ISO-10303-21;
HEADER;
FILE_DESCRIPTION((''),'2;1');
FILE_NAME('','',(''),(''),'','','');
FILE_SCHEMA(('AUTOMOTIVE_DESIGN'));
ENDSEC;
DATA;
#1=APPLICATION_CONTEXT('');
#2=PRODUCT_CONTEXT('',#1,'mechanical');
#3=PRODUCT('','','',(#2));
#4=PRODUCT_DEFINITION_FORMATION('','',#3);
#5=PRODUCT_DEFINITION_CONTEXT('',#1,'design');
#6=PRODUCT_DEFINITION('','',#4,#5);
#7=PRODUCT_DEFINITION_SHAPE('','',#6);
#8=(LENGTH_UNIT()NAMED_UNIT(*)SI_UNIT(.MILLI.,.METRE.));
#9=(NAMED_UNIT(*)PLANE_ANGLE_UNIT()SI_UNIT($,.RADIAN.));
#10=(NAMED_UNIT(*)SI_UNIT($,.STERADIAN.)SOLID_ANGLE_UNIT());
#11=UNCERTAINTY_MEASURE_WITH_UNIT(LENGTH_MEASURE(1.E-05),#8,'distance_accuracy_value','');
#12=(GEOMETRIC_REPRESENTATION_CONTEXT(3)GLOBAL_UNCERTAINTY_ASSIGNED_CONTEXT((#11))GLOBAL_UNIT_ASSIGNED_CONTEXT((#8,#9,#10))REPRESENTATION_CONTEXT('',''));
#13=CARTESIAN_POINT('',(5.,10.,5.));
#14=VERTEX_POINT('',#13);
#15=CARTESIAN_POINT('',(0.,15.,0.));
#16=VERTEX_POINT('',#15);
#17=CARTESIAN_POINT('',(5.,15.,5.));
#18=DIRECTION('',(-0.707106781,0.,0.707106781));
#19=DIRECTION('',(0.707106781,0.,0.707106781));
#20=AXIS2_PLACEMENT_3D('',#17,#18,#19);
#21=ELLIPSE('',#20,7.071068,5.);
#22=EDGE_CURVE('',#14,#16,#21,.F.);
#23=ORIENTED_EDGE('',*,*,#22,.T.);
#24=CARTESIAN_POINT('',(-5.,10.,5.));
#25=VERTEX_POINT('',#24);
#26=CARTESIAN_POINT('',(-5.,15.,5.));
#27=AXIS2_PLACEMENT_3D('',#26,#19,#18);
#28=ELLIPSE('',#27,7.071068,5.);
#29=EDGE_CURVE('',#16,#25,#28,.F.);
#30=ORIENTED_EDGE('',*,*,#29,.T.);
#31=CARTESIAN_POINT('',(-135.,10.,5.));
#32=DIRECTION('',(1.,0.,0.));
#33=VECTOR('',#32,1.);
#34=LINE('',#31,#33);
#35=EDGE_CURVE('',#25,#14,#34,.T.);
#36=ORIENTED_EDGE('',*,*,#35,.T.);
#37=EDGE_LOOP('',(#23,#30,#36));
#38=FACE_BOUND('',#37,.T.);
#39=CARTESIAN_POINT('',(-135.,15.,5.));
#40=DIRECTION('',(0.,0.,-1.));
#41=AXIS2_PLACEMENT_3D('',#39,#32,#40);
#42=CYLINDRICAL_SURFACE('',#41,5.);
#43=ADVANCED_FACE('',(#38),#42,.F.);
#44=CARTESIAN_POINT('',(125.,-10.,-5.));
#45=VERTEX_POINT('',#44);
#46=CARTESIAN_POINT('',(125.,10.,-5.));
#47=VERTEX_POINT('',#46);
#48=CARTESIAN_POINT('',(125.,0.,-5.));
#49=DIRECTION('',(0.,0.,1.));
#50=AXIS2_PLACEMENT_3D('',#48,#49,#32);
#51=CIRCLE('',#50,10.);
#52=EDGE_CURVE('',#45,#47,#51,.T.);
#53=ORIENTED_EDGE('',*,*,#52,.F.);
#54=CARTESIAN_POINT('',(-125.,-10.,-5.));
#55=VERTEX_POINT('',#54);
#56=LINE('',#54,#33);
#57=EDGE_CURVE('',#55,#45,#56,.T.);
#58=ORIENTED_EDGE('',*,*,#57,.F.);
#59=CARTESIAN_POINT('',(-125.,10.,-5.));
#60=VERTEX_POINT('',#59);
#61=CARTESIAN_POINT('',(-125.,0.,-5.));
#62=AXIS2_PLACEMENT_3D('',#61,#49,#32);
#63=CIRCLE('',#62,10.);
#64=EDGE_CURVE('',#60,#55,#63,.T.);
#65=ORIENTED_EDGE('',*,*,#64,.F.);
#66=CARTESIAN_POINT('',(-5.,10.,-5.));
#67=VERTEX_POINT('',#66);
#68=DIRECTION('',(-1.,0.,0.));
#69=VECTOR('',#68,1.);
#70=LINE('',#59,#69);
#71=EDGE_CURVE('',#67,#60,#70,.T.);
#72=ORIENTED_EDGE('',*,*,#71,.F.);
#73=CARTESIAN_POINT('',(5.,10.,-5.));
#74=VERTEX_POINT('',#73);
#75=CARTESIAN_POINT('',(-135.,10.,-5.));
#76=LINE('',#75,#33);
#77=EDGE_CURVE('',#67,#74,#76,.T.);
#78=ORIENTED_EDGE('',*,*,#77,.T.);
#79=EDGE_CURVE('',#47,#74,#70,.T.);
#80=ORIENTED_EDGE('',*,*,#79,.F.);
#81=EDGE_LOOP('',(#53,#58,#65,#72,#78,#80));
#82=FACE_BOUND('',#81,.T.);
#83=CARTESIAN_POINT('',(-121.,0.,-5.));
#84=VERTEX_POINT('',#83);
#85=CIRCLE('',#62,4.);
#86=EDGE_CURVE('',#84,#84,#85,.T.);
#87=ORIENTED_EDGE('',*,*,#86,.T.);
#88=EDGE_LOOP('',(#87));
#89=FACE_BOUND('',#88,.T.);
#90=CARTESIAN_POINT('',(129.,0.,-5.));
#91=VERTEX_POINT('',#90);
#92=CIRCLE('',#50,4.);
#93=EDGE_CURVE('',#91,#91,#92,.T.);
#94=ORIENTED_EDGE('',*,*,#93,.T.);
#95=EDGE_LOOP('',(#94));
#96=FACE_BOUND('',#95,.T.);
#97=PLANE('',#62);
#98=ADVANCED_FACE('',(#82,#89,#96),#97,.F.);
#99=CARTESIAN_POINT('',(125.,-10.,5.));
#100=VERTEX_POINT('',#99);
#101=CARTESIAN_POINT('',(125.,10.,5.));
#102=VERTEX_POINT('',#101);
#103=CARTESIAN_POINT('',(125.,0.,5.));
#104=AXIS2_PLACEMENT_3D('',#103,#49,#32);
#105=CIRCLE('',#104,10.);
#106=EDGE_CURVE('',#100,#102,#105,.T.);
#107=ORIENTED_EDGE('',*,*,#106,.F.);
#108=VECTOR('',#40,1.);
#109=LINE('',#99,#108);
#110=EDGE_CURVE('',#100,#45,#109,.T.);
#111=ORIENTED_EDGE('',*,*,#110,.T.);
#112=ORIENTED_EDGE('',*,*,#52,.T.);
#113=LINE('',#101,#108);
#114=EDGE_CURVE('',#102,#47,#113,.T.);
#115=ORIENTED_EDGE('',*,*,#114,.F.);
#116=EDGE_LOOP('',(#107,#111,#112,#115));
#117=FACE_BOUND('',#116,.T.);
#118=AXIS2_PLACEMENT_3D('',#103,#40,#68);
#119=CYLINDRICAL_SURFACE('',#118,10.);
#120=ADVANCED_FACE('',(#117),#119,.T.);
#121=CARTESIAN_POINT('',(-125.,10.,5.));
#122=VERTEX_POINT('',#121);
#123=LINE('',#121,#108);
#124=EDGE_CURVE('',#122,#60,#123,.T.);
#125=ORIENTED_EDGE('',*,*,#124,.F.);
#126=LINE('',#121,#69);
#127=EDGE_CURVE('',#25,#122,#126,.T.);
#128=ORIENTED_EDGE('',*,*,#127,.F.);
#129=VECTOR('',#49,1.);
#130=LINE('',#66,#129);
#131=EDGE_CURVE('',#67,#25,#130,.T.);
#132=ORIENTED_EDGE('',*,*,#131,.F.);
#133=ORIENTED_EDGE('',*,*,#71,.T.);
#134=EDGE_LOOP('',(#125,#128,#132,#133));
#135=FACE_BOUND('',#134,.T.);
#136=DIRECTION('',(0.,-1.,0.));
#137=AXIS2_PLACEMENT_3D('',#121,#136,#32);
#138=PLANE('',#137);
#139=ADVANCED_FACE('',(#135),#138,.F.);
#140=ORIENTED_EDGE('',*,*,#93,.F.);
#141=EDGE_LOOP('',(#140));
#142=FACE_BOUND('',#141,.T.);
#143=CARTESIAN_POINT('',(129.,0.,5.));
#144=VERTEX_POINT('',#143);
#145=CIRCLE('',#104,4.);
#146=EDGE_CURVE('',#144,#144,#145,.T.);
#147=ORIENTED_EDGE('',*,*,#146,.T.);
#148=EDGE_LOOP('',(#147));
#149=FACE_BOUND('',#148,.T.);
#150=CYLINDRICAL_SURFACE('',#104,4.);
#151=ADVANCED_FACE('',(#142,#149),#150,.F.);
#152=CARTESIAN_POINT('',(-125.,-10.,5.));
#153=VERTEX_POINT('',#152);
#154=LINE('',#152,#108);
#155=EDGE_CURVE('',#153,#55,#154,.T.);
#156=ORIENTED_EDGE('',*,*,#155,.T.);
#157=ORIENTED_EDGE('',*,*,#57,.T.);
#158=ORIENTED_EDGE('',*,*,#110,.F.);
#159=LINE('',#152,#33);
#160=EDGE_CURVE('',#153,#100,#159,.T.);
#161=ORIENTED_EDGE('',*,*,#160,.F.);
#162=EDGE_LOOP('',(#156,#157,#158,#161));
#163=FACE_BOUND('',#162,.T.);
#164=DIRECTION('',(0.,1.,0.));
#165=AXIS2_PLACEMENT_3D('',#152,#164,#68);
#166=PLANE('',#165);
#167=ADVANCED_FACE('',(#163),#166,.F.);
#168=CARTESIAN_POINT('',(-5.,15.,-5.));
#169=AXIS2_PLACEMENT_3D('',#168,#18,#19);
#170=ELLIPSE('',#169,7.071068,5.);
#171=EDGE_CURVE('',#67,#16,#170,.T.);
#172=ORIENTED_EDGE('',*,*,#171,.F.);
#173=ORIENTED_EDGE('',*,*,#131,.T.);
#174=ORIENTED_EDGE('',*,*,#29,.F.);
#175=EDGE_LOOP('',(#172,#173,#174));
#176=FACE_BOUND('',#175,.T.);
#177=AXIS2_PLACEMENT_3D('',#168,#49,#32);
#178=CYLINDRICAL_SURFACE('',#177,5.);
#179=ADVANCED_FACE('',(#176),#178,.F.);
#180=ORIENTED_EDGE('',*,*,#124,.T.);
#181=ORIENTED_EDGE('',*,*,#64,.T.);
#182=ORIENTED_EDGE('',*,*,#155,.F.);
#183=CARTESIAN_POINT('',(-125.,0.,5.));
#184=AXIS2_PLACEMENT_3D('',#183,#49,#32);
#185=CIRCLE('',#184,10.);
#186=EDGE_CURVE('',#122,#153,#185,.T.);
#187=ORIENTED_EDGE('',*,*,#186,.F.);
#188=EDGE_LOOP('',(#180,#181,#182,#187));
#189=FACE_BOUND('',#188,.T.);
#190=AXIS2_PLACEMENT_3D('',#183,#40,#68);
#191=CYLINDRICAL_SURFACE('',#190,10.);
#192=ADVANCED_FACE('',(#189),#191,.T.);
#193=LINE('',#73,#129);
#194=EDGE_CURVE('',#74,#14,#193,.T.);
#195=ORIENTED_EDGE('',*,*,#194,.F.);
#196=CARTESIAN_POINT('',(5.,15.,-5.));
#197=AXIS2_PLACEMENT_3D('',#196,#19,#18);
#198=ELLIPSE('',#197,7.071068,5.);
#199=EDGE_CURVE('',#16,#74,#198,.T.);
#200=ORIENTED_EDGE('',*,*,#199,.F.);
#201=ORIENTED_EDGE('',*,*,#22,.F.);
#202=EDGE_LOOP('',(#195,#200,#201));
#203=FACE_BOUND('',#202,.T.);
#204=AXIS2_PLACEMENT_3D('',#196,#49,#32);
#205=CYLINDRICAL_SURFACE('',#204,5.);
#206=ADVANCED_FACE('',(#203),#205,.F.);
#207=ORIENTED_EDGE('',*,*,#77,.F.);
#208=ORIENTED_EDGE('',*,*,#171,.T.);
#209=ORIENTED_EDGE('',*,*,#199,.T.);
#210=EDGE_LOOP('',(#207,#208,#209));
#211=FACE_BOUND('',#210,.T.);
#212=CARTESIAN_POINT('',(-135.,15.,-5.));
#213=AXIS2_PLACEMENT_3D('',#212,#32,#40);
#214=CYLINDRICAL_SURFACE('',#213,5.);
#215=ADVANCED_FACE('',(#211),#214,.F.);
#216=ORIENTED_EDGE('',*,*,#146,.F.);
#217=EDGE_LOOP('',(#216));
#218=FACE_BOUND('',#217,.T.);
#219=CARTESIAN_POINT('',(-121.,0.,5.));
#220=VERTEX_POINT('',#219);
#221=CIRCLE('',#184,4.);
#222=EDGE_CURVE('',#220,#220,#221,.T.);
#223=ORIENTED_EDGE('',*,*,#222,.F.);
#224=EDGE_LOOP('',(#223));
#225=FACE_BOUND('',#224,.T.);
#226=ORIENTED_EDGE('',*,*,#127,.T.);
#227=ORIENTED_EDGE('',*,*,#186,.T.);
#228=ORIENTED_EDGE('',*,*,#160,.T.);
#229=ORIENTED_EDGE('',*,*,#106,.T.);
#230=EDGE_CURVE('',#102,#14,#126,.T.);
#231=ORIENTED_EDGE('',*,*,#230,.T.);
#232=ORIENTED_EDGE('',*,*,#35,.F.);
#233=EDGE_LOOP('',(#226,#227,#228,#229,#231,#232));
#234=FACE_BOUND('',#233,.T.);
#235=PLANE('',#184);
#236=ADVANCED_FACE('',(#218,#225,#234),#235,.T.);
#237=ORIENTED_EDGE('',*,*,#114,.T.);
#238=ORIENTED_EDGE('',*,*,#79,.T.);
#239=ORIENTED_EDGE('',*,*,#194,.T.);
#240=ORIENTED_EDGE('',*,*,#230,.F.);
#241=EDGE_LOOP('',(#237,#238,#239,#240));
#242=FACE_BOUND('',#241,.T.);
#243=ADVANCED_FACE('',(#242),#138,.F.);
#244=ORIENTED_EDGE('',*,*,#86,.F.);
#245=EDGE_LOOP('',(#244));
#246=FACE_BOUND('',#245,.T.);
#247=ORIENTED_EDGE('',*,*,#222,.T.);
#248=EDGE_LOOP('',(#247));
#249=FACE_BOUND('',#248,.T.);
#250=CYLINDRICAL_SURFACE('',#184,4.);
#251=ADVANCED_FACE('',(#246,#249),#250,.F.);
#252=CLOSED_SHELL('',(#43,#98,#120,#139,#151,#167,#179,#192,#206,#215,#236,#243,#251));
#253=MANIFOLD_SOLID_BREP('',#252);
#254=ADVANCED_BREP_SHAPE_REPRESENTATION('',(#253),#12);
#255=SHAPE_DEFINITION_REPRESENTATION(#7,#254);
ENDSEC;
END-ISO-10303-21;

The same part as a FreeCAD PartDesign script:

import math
import FreeCAD as App
import Part
import Sketcher

V = App.Vector

doc = App.newDocument("Part")
body = doc.addObject("PartDesign::Body", "Body")

sketch1 = body.newObject("Sketcher::SketchObject", "Sketch")
sketch1.AttachmentSupport = (doc.getObject("XY_Plane"), [""])
sketch1.MapMode = "FlatFace"
sketch1.addGeometry(Part.LineSegment(V(125, 10, 0), V(-125, 10, 0)), False)
sketch1.addGeometry(Part.ArcOfCircle(Part.Circle(V(-125, 0, 0), V(0, 0, 1), 10), math.radians(90), math.radians(270)), False)
sketch1.addGeometry(Part.LineSegment(V(-125, -10, 0), V(125, -10, 0)), False)
sketch1.addGeometry(Part.ArcOfCircle(Part.Circle(V(125, 0, 0), V(0, 0, 1), 10), math.radians(-90), math.radians(90)), False)
sketch1.addConstraint(Sketcher.Constraint("Tangent", 0, 2, 1, 1))
sketch1.addConstraint(Sketcher.Constraint("Tangent", 1, 2, 2, 1))
sketch1.addConstraint(Sketcher.Constraint("Tangent", 2, 2, 3, 1))
sketch1.addConstraint(Sketcher.Constraint("Tangent", 3, 2, 0, 1))
sketch1.addConstraint(Sketcher.Constraint("Horizontal", 0))
sketch1.addConstraint(Sketcher.Constraint("Horizontal", 2))
sketch1.addConstraint(Sketcher.Constraint("Symmetric", 1, 3, 3, 3, -1, 1))
sketch1.addConstraint(Sketcher.Constraint("Radius", 1, 10.0))
sketch1.addConstraint(Sketcher.Constraint("DistanceX", 0, 2, 0, 1, 250.0))
pad1 = body.newObject("PartDesign::Pad", "Pad")
pad1.Profile = sketch1
pad1.Length = 10
pad1.Midplane = True

sketch2 = body.newObject("Sketcher::SketchObject", "Sketch001")
sketch2.AttachmentSupport = (doc.getObject("XY_Plane"), [""])
sketch2.MapMode = "FlatFace"
sketch2.AttachmentOffset = App.Placement(V(0, 0, 5), App.Rotation())
sketch2.addGeometry(Part.Circle(V(-125, 0, 0), V(0, 0, 1), 4), False)
sketch2.addGeometry(Part.Circle(V(125, 0, 0), V(0, 0, 1), 4), False)
sketch2.addConstraint(Sketcher.Constraint("Equal", 0, 1))
sketch2.addConstraint(Sketcher.Constraint("Symmetric", 0, 3, 1, 3, -1, 1))
sketch2.addConstraint(Sketcher.Constraint("PointOnObject", 0, 3, -1))
sketch2.addConstraint(Sketcher.Constraint("Diameter", 0, 8.0))
sketch2.addConstraint(Sketcher.Constraint("DistanceX", 0, 3, -1, 1, 125.0))
doc.recompute()
hole = body.newObject("PartDesign::Hole", "Hole")
hole.Profile = sketch2
hole.ThreadType = "None"
hole.Diameter = 8
hole.DepthType = "ThroughAll"

sketch3 = body.newObject("Sketcher::SketchObject", "Sketch002")
sketch3.AttachmentSupport = (doc.getObject("XY_Plane"), [""])
sketch3.MapMode = "FlatFace"
sketch3.AttachmentOffset = App.Placement(V(0, 0, 5), App.Rotation())
sketch3.addGeometry(Part.LineSegment(V(-5, 10, 0), V(5, 10, 0)), False)
sketch3.addGeometry(Part.ArcOfCircle(Part.Circle(V(5, 15, 0), V(0, 0, 1), 5), math.radians(180), math.radians(270)), False)
sketch3.addGeometry(Part.ArcOfCircle(Part.Circle(V(-5, 15, 0), V(0, 0, 1), 5), math.radians(-90), math.radians(0)), False)
sketch3.addConstraint(Sketcher.Constraint("Tangent", 0, 2, 1, 2))
sketch3.addConstraint(Sketcher.Constraint("Tangent", 1, 1, 2, 2))
sketch3.addConstraint(Sketcher.Constraint("Tangent", 2, 1, 0, 1))
sketch3.addConstraint(Sketcher.Constraint("Horizontal", 0))
sketch3.addConstraint(Sketcher.Constraint("Equal", 1, 2))
sketch3.addConstraint(Sketcher.Constraint("PointOnObject", 1, 1, -2))
sketch3.addConstraint(Sketcher.Constraint("Radius", 1, 5.0))
sketch3.addConstraint(Sketcher.Constraint("DistanceY", -1, 1, 1, 3, 15.0))
pad2 = body.newObject("PartDesign::Pad", "Pad001")
pad2.Profile = sketch3
pad2.Length = 10
pad2.Reversed = True

sketch4 = body.newObject("Sketcher::SketchObject", "Sketch003")
sketch4.AttachmentSupport = (doc.getObject("YZ_Plane"), [""])
sketch4.MapMode = "FlatFace"
sketch4.addGeometry(Part.LineSegment(V(20, 5, 0), V(10, 5, 0)), False)
sketch4.addGeometry(Part.ArcOfCircle(Part.Circle(V(15, 5, 0), V(0, 0, 1), 5), math.radians(180), math.radians(270)), False)
sketch4.addGeometry(Part.ArcOfCircle(Part.Circle(V(15, -5, 0), V(0, 0, 1), 5), math.radians(90), math.radians(180)), False)
sketch4.addGeometry(Part.LineSegment(V(10, -5, 0), V(20, -5, 0)), False)
sketch4.addGeometry(Part.LineSegment(V(20, -5, 0), V(20, 5, 0)), False)
sketch4.addConstraint(Sketcher.Constraint("Coincident", 0, 2, 1, 1))
sketch4.addConstraint(Sketcher.Constraint("Tangent", 1, 2, 2, 1))
sketch4.addConstraint(Sketcher.Constraint("Coincident", 2, 2, 3, 1))
sketch4.addConstraint(Sketcher.Constraint("Coincident", 3, 2, 4, 1))
sketch4.addConstraint(Sketcher.Constraint("Coincident", 4, 2, 0, 1))
sketch4.addConstraint(Sketcher.Constraint("Horizontal", 0))
sketch4.addConstraint(Sketcher.Constraint("Horizontal", 3))
sketch4.addConstraint(Sketcher.Constraint("Vertical", 4))
sketch4.addConstraint(Sketcher.Constraint("Equal", 1, 2))
sketch4.addConstraint(Sketcher.Constraint("Symmetric", 1, 3, 2, 3, -1))
sketch4.addConstraint(Sketcher.Constraint("Horizontal", 1, 3, 0, 2))
sketch4.addConstraint(Sketcher.Constraint("Equal", 3, 4))
sketch4.addConstraint(Sketcher.Constraint("Radius", 1, 5.0))
sketch4.addConstraint(Sketcher.Constraint("DistanceX", 0, 2, 0, 1, 10.0))
sketch4.addConstraint(Sketcher.Constraint("DistanceX", -1, 1, 1, 3, 15.0))
pocket1 = body.newObject("PartDesign::Pocket", "Pocket")
pocket1.Profile = sketch4
pocket1.Type = "ThroughAll"
pocket1.Midplane = True

doc.recompute()
